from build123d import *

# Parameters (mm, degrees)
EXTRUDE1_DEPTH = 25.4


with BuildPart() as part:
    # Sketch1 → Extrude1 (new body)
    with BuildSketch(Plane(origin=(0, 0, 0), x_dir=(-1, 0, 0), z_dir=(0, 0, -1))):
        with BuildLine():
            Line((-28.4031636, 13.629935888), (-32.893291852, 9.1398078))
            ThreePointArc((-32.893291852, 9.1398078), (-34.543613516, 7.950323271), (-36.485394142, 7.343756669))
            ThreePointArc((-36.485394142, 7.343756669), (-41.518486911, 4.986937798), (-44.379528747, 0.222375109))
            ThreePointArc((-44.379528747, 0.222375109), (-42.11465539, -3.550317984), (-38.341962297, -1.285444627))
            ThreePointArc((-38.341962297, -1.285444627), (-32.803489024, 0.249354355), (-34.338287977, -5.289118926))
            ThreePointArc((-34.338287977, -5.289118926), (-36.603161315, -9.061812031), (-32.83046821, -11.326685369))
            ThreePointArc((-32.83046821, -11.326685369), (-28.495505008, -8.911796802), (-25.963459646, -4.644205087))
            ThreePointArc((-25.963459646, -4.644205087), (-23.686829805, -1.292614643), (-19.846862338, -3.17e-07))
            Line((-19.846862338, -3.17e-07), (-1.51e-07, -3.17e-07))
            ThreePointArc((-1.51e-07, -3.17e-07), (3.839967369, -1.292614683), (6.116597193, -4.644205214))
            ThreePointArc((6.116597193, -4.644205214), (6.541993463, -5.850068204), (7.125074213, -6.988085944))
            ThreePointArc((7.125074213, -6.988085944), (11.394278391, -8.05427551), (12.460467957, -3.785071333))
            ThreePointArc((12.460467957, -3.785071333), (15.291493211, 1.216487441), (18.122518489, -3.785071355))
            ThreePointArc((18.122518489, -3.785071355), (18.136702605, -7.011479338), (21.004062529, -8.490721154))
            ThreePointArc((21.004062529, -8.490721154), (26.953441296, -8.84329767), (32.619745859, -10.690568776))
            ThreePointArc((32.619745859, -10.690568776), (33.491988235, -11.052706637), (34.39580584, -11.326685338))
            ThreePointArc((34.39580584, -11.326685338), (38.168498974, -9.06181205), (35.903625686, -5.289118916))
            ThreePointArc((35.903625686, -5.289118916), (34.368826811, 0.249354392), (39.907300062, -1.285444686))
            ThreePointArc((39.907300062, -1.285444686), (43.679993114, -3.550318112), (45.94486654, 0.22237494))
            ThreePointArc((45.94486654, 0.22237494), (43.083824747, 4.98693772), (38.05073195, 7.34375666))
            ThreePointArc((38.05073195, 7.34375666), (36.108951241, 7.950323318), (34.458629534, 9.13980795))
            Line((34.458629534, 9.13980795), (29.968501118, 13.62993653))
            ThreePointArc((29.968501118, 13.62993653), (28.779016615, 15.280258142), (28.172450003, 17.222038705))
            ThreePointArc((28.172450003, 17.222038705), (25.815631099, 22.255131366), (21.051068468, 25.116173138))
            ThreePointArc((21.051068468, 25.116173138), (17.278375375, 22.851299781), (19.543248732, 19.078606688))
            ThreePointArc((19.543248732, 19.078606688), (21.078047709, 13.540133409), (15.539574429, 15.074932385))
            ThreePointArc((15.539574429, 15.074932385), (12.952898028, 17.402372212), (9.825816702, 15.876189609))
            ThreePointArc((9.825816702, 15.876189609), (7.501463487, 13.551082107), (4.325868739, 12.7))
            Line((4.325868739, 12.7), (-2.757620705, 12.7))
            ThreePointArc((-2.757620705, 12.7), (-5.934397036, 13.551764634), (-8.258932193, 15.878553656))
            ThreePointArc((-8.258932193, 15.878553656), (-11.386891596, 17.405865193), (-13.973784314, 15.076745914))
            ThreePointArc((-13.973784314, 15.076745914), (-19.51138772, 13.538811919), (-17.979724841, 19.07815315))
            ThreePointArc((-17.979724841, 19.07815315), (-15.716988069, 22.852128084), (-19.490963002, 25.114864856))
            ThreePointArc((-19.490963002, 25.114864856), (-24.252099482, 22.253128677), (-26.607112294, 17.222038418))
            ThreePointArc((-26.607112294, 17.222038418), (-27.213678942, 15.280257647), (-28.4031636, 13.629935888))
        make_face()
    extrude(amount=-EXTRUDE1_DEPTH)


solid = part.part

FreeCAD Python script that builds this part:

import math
import FreeCAD as App
import Part
import Sketcher
Q = App.Units.Quantity

doc = App.newDocument("Part")
body = doc.addObject("PartDesign::Body", "Body")

sketch1 = body.newObject("Sketcher::SketchObject", "Sketch")
sketch1.AttachmentSupport = (doc.getObject("XY_Plane"), [""])
sketch1.MapMode = "FlatFace"
sketch1.addGeometry([
    Part.LineSegment(App.Vector(28.4, 13.6, 0), App.Vector(32.9, 9.1, 0)),
    Part.ArcOfCircle(Part.Circle(App.Vector(37.4, 13.6, 0), App.Vector(0, 0, 1), 6.3), math.radians(-135), math.radians(-98)),
    Part.ArcOfCircle(Part.Circle(App.Vector(35.1, -2.1, 0), App.Vector(0, 0, 1), 9.5), math.radians(14), math.radians(82)),
    Part.ArcOfCircle(Part.Circle(App.Vector(41.4, -0.5, 0), App.Vector(0, 0, 1), 3.1), math.radians(-166), math.radians(14)),
    Part.ArcOfCircle(Part.Circle(App.Vector(35.1, -2.1, 0), App.Vector(0, 0, 1), 3.3), math.radians(14), math.radians(256)),
    Part.ArcOfCircle(Part.Circle(App.Vector(33.6, -8.3, 0), App.Vector(0, 0, 1), 3.1), math.radians(-104), math.radians(76)),
    Part.ArcOfCircle(Part.Circle(App.Vector(35.1, -2.1, 0), App.Vector(0, 0, 1), 9.5), math.radians(-164), math.radians(-104)),
    Part.ArcOfCircle(Part.Circle(App.Vector(19.8, -6.4, 0), App.Vector(0, 0, 1), 6.3), math.radians(16), math.radians(90)),
    Part.LineSegment(App.Vector(19.8, 0, 0), App.Vector(0, 0, 0)),
    Part.ArcOfCircle(Part.Circle(App.Vector(0, -6.4, 0), App.Vector(0, 0, 1), 6.3), math.radians(90), math.radians(164)),
    Part.ArcOfCircle(Part.Circle(App.Vector(-15.3, -2.1, 0), App.Vector(0, 0, 1), 9.5), math.radians(-30.98), math.radians(-15.58)),
    Part.ArcOfCircle(Part.Circle(App.Vector(-9.8, -5.4, 0), App.Vector(0, 0, 1), 3.1), math.radians(149), math.radians(329)),
    Part.ArcOfCircle(Part.Circle(App.Vector(-15.3, -2.1, 0), App.Vector(0, 0, 1), 3.3), math.radians(-31), math.radians(211)),
    Part.ArcOfCircle(Part.Circle(App.Vector(-20.8, -5.4, 0), App.Vector(0, 0, 1), 3.1), math.radians(-94), math.radians(31)),
    Part.ArcOfCircle(Part.Circle(App.Vector(-22.6, -31.8, 0), App.Vector(0, 0, 1), 23.3), math.radians(86), math.radians(115)),
    Part.ArcOfCircle(Part.Circle(App.Vector(-36.7, -2.1, 0), App.Vector(0, 0, 1), 9.5), math.radians(-75.98), math.radians(-64.61)),
    Part.ArcOfCircle(Part.Circle(App.Vector(-35.1, -8.3, 0), App.Vector(0, 0, 1), 3.1), math.radians(104), math.radians(284)),
    Part.ArcOfCircle(Part.Circle(App.Vector(-36.7, -2.1, 0), App.Vector(0, 0, 1), 3.3), math.radians(-76), math.radians(166)),
    Part.ArcOfCircle(Part.Circle(App.Vector(-42.9, -0.5, 0), App.Vector(0, 0, 1), 3.1), math.radians(166), math.radians(346)),
    Part.ArcOfCircle(Part.Circle(App.Vector(-36.7, -2.1, 0), App.Vector(0, 0, 1), 9.5), math.radians(98), math.radians(166)),
    Part.ArcOfCircle(Part.Circle(App.Vector(-38.9, 13.6, 0), App.Vector(0, 0, 1), 6.4), math.radians(-82), math.radians(-45)),
    Part.LineSegment(App.Vector(-34.5, 9.1, 0), App.Vector(-30, 13.6, 0)),
    Part.ArcOfCircle(Part.Circle(App.Vector(-34.5, 18.1, 0), App.Vector(0, 0, 1), 6.3), math.radians(-45), math.radians(-8)),
    Part.ArcOfCircle(Part.Circle(App.Vector(-18.7, 15.9, 0), App.Vector(0, 0, 1), 9.5), math.radians(104), math.radians(172)),
    Part.ArcOfCircle(Part.Circle(App.Vector(-20.3, 22.1, 0), App.Vector(0, 0, 1), 3.1), math.radians(-76), math.radians(104)),
    Part.ArcOfCircle(Part.Circle(App.Vector(-18.7, 15.9, 0), App.Vector(0, 0, 1), 3.3), math.radians(104), math.radians(346)),
    Part.ArcOfCircle(Part.Circle(App.Vector(-12.5, 14.3, 0), App.Vector(0, 0, 1), 3.1), math.radians(30), math.radians(166)),
    Part.ArcOfCircle(Part.Circle(App.Vector(-4.3, 19, 0), App.Vector(0, 0, 1), 6.3), math.radians(-150), math.radians(-90)),
    Part.LineSegment(App.Vector(-4.3, 12.7, 0), App.Vector(2.8, 12.7, 0)),
    Part.ArcOfCircle(Part.Circle(App.Vector(2.8, 19.1, 0), App.Vector(0, 0, 1), 6.4), math.radians(-90), math.radians(-30)),
    Part.ArcOfCircle(Part.Circle(App.Vector(11, 14.3, 0), App.Vector(0, 0, 1), 3.1), math.radians(14), math.radians(150)),
    Part.ArcOfCircle(Part.Circle(App.Vector(17.2, 15.9, 0), App.Vector(0, 0, 1), 3.3), math.radians(-166), math.radians(76)),
    Part.ArcOfCircle(Part.Circle(App.Vector(18.7, 22.1, 0), App.Vector(0, 0, 1), 3.1), math.radians(76), math.radians(256)),
    Part.ArcOfCircle(Part.Circle(App.Vector(17.2, 15.9, 0), App.Vector(0, 0, 1), 9.5), math.radians(8), math.radians(76)),
    Part.ArcOfCircle(Part.Circle(App.Vector(32.9, 18.1, 0), App.Vector(0, 0, 1), 6.4), math.radians(-172), math.radians(-135)),
], False)
sketch1.addConstraint([
    Sketcher.Constraint("Tangent", 0, 2, 1, 1),
    Sketcher.Constraint("Tangent", 1, 2, 2, 2),
    Sketcher.Constraint("Tangent", 2, 1, 3, 2),
    Sketcher.Constraint("Tangent", 3, 1, 4, 1),
    Sketcher.Constraint("Tangent", 4, 2, 5, 2),
    Sketcher.Constraint("Tangent", 5, 1, 6, 2),
    Sketcher.Constraint("Tangent", 6, 1, 7, 1),
    Sketcher.Constraint("Tangent", 7, 2, 8, 1),
    Sketcher.Constraint("Tangent", 8, 2, 9, 1),
    Sketcher.Constraint("Tangent", 9, 2, 10, 2),
    Sketcher.Constraint("Tangent", 10, 1, 11, 2),
    Sketcher.Constraint("Tangent", 11, 1, 12, 1),
    Sketcher.Constraint("Tangent", 12, 2, 13, 2),
    Sketcher.Constraint("Tangent", 13, 1, 14, 1),
    Sketcher.Constraint("Tangent", 14, 2, 15, 2),
    Sketcher.Constraint("Tangent", 15, 1, 16, 2),
    Sketcher.Constraint("Tangent", 16, 1, 17, 1),
    Sketcher.Constraint("Tangent", 17, 2, 18, 2),
    Sketcher.Constraint("Tangent", 18, 1, 19, 2),
    Sketcher.Constraint("Tangent", 19, 1, 20, 1),
    Sketcher.Constraint("Tangent", 20, 2, 21, 1),
    Sketcher.Constraint("Tangent", 21, 2, 22, 1),
    Sketcher.Constraint("Tangent", 22, 2, 23, 2),
    Sketcher.Constraint("Tangent", 23, 1, 24, 2),
    Sketcher.Constraint("Tangent", 24, 1, 25, 1),
    Sketcher.Constraint("Tangent", 25, 2, 26, 2),
    Sketcher.Constraint("Tangent", 26, 1, 27, 1),
    Sketcher.Constraint("Tangent", 27, 2, 28, 1),
    Sketcher.Constraint("Tangent", 28, 2, 29, 1),
    Sketcher.Constraint("Tangent", 29, 2, 30, 2),
    Sketcher.Constraint("Tangent", 30, 1, 31, 1),
    Sketcher.Constraint("Tangent", 31, 2, 32, 2),
    Sketcher.Constraint("Tangent", 32, 1, 33, 2),
    Sketcher.Constraint("Tangent", 33, 1, 34, 1),
    Sketcher.Constraint("Tangent", 34, 2, 0, 1),
    Sketcher.Constraint("Horizontal", 8),
    Sketcher.Constraint("Horizontal", 28),
    Sketcher.Constraint("Coincident", 8, 2, -1, 1),
    Sketcher.Constraint("Coincident", 4, 3, 2, 3),
    Sketcher.Constraint("Coincident", 6, 3, 2, 3),
    Sketcher.Constraint("Coincident", 12, 3, 10, 3),
    Sketcher.Constraint("Coincident", 17, 3, 15, 3),
    Sketcher.Constraint("Coincident", 19, 3, 15, 3),
    Sketcher.Constraint("Coincident", 25, 3, 23, 3),
    Sketcher.Constraint("Coincident", 33, 3, 31, 3),
    Sketcher.Constraint("Equal", 3, 5),
    Sketcher.Constraint("Equal", 1, 7),
    Sketcher.Constraint("Equal", 7, 9),
    Sketcher.Constraint("Equal", 6, 10),
    Sketcher.Constraint("Equal", 5, 11),
    Sketcher.Constraint("Equal", 11, 13),
    Sketcher.Constraint("Equal", 10, 15),
    Sketcher.Constraint("Equal", 13, 16),
    Sketcher.Constraint("Equal", 16, 18),
    Sketcher.Constraint("Equal", 9, 20),
    Sketcher.Constraint("Equal", 20, 22),
    Sketcher.Constraint("Equal", 19, 23),
    Sketcher.Constraint("Equal", 18, 24),
    Sketcher.Constraint("Equal", 24, 26),
    Sketcher.Constraint("Equal", 22, 27),
    Sketcher.Constraint("Equal", 27, 29),
    Sketcher.Constraint("Equal", 26, 30),
    Sketcher.Constraint("Equal", 25, 31),
    Sketcher.Constraint("Equal", 30, 32),
    Sketcher.Constraint("Equal", 29, 34),
    Sketcher.Constraint("Perpendicular", 0, 21),
    Sketcher.Constraint("Horizontal", 6, 3, 10, 3),
    Sketcher.Constraint("Horizontal", 11, 3, 13, 3),
    Sketcher.Constraint("Horizontal", 12, 3, 15, 3),
    Sketcher.Constraint("Horizontal", 5, 3, 16, 3),
    Sketcher.Constraint("Horizontal", 3, 3, 18, 3),
    Sketcher.Constraint("Horizontal", 1, 3, 20, 3),
    Sketcher.Constraint("Horizontal", 25, 3, 31, 3),
    Sketcher.Constraint("Horizontal", 22, 3, 34, 3),
    Sketcher.Constraint("Horizontal", 0, 2, 20, 2),
    Sketcher.Constraint("Horizontal", 20, 3, 21, 2),
    Sketcher.Constraint("Radius", 1, Q("0.25 in")),
    Sketcher.Constraint("Radius", 4, Q("0.13 in")),
    Sketcher.Constraint("Radius", 2, Q("0.375 in")),
    Sketcher.Constraint("DistanceY", -1, 1, 27, 2, Q("0.5 in")),
    Sketcher.Constraint("DistanceY", -1, 1, 23, 3, Q("0.625 in")),
    Sketcher.Constraint("Radius", 14, Q("23.348628 mm")),
    Sketcher.Constraint("DistanceX", -1, 1, 2, 3, Q("1.3833998 in")),
    Sketcher.Constraint("DistanceX", 28, 1, 28, 2, Q("7.083489 mm")),
    Sketcher.Constraint("DistanceX", 17, 2, -1, 1, Q("39.9073 mm")),
    Sketcher.Constraint("DistanceX", 21, 2, -1, 1, Q("29.968501 mm")),
    Sketcher.Constraint("DistanceX", 8, 2, 8, 1, Q("19.846862 mm")),
    Sketcher.Constraint("DistanceX", -1, 1, 1, 3, Q("37.38342 mm")),
    Sketcher.Constraint("DistanceX", -1, 1, 5, 3, Q("33.584378 mm")),
    Sketcher.Constraint("DistanceX", 11, 3, -1, 1, Q("9.792771 mm")),
    Sketcher.Constraint("DistanceX", 24, 3, -1, 1, Q("20.297159 mm")),
    Sketcher.Constraint("DistanceX", 26, 3, -1, 1, Q("12.520791 mm")),
    Sketcher.Constraint("DistanceY", -1, 1, 32, 3, Q("22.096509 mm")),
])
pad1 = body.newObject("PartDesign::Pad", "Pad")
pad1.Profile = sketch1
pad1.Length = Q("1 in")

doc.recompute()
